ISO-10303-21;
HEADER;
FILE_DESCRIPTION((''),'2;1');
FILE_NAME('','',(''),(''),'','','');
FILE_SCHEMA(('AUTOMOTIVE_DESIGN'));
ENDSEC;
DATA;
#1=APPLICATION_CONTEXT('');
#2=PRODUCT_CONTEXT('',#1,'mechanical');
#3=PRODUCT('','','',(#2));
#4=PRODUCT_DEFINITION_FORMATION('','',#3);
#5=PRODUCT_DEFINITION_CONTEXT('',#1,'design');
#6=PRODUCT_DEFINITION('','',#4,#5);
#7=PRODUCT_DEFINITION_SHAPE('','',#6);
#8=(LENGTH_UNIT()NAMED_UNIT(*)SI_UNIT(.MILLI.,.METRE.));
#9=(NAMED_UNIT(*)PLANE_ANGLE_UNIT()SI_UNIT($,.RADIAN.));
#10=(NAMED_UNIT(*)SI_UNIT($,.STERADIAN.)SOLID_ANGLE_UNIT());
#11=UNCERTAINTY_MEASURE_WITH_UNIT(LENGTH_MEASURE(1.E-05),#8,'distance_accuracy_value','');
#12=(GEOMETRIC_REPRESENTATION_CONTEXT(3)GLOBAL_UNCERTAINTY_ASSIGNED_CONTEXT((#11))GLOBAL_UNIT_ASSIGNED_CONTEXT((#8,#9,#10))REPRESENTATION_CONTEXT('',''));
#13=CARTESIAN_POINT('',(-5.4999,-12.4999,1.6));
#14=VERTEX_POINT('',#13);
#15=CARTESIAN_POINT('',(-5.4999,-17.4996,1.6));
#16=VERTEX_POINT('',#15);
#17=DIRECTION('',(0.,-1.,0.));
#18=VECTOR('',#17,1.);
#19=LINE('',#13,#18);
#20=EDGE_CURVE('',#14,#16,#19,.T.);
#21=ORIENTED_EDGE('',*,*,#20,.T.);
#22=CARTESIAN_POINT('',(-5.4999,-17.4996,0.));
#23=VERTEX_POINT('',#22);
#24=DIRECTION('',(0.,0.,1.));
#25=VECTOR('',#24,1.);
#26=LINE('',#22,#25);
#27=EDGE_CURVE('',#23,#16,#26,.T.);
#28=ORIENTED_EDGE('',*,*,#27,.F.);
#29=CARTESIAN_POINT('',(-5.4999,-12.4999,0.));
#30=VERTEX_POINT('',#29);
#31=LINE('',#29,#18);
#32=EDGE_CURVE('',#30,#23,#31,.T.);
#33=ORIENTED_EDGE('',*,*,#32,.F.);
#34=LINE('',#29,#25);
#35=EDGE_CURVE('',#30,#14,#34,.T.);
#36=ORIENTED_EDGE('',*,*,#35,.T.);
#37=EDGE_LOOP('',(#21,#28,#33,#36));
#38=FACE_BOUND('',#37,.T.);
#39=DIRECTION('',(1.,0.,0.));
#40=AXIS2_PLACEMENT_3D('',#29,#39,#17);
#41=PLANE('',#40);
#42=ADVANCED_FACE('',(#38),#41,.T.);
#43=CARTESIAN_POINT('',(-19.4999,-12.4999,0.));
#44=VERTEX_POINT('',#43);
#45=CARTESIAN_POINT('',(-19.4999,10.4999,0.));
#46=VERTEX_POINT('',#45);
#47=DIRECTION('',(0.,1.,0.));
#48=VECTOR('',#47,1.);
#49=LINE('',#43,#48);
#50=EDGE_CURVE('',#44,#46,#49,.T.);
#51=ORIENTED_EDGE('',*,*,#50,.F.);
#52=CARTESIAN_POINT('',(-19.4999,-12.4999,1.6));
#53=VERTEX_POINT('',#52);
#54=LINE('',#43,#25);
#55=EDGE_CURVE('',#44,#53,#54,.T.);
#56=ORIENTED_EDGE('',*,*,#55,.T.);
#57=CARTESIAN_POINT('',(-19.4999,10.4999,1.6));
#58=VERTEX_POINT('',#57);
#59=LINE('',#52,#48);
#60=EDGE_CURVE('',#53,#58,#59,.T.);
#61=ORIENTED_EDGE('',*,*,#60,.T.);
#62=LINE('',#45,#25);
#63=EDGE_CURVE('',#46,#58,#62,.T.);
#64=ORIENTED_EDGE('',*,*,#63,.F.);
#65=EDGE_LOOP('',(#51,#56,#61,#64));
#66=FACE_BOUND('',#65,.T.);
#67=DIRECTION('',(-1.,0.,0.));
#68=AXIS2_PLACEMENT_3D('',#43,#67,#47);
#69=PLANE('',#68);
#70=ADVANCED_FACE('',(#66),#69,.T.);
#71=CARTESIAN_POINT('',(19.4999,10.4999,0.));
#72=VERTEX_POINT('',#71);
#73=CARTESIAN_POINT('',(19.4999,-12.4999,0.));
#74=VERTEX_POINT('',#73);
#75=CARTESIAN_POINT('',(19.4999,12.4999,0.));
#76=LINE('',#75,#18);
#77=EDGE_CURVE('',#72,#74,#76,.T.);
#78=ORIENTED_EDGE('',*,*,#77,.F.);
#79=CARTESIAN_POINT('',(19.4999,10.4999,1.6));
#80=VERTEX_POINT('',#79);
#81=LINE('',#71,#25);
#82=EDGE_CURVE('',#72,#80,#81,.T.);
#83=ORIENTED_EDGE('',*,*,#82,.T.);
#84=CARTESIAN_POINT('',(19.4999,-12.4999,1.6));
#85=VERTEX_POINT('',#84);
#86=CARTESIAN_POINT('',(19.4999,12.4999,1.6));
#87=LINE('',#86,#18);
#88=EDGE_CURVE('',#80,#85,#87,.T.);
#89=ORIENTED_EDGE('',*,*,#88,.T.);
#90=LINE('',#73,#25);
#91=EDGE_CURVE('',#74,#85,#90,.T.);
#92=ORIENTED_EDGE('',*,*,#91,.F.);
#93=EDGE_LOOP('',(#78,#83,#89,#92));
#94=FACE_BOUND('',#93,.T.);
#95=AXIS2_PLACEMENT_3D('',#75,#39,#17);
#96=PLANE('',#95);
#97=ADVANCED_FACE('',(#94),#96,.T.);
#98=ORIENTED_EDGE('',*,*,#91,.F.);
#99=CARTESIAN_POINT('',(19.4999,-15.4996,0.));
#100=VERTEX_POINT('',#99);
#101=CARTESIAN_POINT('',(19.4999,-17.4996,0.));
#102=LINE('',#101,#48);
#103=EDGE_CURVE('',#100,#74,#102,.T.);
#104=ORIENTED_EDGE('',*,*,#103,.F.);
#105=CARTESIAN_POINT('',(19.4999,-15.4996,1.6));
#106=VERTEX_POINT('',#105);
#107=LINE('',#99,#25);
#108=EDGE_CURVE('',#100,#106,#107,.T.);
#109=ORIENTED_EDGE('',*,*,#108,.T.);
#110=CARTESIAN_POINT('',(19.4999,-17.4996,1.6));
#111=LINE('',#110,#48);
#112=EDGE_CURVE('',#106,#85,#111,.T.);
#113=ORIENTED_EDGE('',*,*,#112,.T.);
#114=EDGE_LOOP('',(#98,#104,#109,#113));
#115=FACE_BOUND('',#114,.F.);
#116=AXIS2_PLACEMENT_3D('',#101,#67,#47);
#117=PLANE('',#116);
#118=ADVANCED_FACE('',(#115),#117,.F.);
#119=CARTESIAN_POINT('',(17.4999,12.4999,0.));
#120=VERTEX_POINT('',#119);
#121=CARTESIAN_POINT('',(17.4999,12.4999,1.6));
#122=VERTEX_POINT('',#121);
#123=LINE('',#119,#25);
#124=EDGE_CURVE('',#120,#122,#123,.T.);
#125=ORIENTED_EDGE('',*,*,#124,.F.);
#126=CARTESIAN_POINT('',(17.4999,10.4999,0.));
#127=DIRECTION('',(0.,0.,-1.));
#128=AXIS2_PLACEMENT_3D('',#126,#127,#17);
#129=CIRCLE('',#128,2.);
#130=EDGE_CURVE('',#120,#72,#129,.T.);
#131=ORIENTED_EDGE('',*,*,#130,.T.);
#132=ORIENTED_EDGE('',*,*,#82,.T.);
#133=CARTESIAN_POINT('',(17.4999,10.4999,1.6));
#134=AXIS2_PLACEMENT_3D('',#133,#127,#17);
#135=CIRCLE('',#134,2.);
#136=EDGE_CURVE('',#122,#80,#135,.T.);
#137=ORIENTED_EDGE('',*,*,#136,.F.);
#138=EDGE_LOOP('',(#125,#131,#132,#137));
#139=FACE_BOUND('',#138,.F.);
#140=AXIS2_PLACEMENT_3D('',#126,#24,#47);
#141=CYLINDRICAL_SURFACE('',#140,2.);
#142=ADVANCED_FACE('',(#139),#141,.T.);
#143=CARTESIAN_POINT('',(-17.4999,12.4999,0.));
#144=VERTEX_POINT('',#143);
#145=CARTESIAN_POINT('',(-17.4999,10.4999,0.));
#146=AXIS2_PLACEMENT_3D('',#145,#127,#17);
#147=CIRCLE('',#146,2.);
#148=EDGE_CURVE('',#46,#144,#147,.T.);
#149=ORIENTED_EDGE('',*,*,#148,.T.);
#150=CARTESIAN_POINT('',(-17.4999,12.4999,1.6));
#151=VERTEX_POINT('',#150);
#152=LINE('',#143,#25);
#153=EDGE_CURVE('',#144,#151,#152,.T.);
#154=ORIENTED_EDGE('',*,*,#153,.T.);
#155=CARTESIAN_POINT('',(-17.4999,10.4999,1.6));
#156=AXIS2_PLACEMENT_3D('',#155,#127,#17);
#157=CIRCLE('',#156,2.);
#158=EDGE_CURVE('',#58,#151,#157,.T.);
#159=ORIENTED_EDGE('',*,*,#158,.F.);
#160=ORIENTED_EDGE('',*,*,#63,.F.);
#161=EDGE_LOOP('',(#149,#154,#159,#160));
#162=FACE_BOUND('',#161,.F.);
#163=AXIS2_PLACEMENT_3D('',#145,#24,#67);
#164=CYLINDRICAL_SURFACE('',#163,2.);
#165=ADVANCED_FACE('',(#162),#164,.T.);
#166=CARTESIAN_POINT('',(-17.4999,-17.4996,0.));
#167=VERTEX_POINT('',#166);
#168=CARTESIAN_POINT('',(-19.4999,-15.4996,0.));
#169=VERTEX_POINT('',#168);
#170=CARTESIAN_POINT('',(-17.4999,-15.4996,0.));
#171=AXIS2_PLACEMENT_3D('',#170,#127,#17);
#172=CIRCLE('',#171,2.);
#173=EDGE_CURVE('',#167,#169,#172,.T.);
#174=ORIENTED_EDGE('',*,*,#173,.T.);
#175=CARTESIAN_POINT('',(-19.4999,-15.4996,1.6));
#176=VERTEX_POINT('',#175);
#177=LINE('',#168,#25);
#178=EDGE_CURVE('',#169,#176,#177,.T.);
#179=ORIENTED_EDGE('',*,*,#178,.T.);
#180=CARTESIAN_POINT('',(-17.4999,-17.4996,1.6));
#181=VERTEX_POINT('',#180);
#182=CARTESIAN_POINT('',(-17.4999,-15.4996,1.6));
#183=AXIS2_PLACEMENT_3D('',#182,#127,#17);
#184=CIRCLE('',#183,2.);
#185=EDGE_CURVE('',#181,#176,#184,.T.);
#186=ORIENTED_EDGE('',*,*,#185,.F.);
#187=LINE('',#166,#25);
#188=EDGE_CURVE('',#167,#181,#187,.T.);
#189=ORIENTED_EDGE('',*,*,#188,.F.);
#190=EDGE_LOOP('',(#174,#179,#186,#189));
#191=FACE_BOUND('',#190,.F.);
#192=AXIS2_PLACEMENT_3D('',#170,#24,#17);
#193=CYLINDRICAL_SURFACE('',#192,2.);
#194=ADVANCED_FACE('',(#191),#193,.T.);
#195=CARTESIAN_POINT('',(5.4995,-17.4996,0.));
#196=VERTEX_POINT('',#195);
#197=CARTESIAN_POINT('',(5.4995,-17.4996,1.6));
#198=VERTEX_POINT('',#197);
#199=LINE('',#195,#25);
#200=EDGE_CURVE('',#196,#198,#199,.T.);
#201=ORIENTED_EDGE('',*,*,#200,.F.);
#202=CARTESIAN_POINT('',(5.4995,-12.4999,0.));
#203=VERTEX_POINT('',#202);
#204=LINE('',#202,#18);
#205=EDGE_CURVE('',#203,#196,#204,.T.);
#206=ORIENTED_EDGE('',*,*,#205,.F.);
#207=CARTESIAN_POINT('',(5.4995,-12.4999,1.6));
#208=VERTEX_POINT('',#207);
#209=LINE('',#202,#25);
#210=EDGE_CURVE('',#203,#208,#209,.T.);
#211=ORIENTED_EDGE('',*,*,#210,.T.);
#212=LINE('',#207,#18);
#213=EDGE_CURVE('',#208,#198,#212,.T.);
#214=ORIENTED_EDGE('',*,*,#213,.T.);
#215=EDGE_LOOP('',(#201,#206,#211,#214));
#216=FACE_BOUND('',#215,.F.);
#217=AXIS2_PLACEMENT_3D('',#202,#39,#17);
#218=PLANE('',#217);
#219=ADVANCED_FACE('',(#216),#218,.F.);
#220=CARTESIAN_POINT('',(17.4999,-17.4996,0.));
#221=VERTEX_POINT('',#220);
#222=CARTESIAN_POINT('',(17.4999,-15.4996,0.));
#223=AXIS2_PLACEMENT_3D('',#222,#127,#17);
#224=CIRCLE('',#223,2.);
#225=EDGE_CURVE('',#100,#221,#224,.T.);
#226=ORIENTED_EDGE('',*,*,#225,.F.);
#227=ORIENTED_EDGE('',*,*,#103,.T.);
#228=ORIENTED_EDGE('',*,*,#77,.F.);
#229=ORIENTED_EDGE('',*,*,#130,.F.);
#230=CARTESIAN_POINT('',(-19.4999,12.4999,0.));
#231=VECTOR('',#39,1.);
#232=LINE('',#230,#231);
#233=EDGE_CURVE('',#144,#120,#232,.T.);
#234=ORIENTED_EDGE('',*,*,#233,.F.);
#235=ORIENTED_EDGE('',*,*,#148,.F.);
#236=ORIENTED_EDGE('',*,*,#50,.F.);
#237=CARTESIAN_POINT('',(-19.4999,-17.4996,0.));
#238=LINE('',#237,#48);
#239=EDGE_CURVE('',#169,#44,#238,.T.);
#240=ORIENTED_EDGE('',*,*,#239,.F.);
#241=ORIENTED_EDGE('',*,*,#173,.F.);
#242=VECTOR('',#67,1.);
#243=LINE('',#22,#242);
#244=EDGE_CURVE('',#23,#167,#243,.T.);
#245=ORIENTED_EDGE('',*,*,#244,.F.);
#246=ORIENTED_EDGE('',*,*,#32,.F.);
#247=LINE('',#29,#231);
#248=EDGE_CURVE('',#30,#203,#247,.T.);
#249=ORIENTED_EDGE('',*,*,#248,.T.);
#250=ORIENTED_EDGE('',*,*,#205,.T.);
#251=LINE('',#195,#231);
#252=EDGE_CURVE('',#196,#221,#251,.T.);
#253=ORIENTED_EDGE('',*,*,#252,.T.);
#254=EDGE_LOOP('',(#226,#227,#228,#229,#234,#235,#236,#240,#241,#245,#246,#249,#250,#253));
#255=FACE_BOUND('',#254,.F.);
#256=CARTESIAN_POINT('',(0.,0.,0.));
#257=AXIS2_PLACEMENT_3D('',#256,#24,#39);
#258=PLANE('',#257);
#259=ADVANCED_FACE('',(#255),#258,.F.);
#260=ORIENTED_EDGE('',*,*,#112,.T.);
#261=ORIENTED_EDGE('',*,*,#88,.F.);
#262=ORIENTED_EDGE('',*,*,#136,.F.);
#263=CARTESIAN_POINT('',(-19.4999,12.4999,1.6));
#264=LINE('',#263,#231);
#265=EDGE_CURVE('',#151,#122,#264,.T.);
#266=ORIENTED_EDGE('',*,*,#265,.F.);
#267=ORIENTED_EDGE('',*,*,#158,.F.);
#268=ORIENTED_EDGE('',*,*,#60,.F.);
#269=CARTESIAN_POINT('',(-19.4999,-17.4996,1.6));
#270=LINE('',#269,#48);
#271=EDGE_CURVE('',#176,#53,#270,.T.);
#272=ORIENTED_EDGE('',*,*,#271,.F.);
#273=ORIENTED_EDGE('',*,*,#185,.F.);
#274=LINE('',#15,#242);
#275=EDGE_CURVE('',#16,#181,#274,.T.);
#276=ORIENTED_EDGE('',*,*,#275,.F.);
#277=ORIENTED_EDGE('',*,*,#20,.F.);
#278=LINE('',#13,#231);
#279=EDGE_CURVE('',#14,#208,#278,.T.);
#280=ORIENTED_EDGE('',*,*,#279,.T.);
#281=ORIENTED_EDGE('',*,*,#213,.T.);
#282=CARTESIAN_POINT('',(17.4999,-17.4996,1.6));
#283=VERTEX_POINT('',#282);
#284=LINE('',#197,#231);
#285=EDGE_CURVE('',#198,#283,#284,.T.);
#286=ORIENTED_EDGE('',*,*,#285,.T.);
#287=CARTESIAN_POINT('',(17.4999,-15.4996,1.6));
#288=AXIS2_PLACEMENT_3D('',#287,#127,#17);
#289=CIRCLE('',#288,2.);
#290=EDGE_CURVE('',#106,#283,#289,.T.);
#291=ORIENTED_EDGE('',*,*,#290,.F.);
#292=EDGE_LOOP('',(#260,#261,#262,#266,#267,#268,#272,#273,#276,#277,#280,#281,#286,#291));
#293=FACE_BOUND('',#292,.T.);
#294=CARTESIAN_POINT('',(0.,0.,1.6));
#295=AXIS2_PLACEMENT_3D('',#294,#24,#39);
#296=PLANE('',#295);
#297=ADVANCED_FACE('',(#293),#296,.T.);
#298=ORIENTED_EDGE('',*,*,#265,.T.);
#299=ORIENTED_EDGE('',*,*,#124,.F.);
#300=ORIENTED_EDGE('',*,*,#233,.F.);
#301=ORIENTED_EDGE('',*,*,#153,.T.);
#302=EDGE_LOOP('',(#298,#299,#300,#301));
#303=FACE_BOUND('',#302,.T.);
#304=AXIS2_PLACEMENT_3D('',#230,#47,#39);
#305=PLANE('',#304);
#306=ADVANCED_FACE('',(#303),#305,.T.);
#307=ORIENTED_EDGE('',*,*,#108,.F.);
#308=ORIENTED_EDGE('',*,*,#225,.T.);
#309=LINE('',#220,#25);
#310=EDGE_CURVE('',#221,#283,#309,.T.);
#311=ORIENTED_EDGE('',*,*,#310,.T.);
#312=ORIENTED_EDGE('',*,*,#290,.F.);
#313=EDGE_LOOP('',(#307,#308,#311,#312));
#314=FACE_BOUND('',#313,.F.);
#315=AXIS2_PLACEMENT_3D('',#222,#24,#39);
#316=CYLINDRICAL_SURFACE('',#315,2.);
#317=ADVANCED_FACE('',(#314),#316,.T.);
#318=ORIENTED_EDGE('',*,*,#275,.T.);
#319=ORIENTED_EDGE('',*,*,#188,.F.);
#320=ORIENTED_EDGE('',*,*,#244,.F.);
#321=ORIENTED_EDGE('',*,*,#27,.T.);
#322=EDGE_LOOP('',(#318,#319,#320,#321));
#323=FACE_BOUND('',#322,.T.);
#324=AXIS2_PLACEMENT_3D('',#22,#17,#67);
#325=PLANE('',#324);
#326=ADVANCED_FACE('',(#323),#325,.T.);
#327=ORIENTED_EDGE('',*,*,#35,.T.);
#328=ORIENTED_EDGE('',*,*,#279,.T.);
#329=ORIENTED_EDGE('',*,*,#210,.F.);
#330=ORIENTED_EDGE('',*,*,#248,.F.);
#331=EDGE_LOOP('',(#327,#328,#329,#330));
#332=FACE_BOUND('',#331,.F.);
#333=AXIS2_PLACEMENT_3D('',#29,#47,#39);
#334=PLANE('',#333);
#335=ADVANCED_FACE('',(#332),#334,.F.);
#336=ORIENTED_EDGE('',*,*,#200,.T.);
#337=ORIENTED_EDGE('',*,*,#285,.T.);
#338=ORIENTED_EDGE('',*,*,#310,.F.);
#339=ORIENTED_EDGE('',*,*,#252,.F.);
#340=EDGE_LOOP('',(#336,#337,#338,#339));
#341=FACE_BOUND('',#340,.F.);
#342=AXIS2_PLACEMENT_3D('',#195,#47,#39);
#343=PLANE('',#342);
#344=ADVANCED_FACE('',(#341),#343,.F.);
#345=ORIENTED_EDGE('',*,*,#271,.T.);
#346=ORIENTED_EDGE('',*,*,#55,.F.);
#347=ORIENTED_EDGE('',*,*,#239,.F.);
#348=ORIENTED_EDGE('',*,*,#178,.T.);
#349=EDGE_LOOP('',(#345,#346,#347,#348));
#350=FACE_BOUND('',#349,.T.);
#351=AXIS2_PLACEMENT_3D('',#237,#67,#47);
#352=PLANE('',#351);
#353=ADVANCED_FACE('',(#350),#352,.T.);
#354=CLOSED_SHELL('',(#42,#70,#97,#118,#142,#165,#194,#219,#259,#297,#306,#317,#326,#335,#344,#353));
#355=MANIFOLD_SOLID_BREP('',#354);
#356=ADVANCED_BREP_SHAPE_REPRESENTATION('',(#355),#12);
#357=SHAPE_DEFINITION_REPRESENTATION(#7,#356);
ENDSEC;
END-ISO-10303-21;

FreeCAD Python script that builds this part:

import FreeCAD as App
import Part
import Sketcher

V = App.Vector
Q = App.Units.Quantity


def edges_at(feature, points):
    """Names of the edges that pass closest to the given points."""
    edges = feature.Shape.Edges
    near = lambda p: min(range(len(edges)), key=lambda i: edges[i].distToShape(Part.Vertex(*p))[0])
    return sorted({f"Edge{near(p) + 1}" for p in points})


def add_polygon(sketch, points):
    """Adds a closed chain of lines whose ends are joined by coincident constraints."""
    first, n = sketch.GeometryCount, len(points)
    for a, b in zip(points, points[1:] + points[:1]):
        sketch.addGeometry(Part.LineSegment(App.Vector(*a, 0), App.Vector(*b, 0)), False)
    for i in range(n):
        sketch.addConstraint(Sketcher.Constraint("Coincident", first + i, 2, first + (i + 1) % n, 1))

doc = App.newDocument("Part")
params = doc.addObject("Spreadsheet::Sheet", "Params")
for row, (alias, value) in enumerate([
    ("sketch1_width", "14 mm"),
    ("pad1_length", "1.6 mm"),
    ("fillet_radius", "2 mm"),
], start=1):
    params.set(f"A{row}", alias)
    params.set(f"B{row}", "=" + value)
    params.setAlias(f"B{row}", alias)

body = doc.addObject("PartDesign::Body", "Body")

sketch1 = body.newObject("Sketcher::SketchObject", "Sketch")
sketch1.AttachmentSupport = (doc.getObject("XY_Plane"), [""])
sketch1.MapMode = "FlatFace"
add_polygon(sketch1, [(-19.5, 12.5), (-19.5, -17.5), (-5.5, -17.5), (-5.5, -12.5), (5.5, -12.5), (5.5, -17.5), (19.5, -17.5), (19.5, 12.5)])
sketch1.addConstraint(Sketcher.Constraint("Vertical", 0))
sketch1.addConstraint(Sketcher.Constraint("Horizontal", 1))
sketch1.addConstraint(Sketcher.Constraint("Vertical", 2))
sketch1.addConstraint(Sketcher.Constraint("Horizontal", 3))
sketch1.addConstraint(Sketcher.Constraint("Vertical", 4))
sketch1.addConstraint(Sketcher.Constraint("Horizontal", 5))
sketch1.addConstraint(Sketcher.Constraint("Vertical", 6))
sketch1.addConstraint(Sketcher.Constraint("Horizontal", 7))
sketch1.addConstraint(Sketcher.Constraint("Symmetric", 1, 2, 4, 2, -2))
sketch1.addConstraint(Sketcher.Constraint("DistanceX", 1, 1, 1, 2, Q("14 mm")))
sketch1.addConstraint(Sketcher.Constraint("DistanceX", 0, 2, -1, 1, Q("19.5 mm")))
sketch1.addConstraint(Sketcher.Constraint("DistanceY", 2, 2, -1, 1, Q("12.5 mm")))
sketch1.addConstraint(Sketcher.Constraint("DistanceX", -1, 1, 5, 2, Q("19.5 mm")))
sketch1.addConstraint(Sketcher.Constraint("DistanceY", -1, 1, 6, 2, Q("12.5 mm")))
sketch1.addConstraint(Sketcher.Constraint("DistanceY", 0, 2, 0, 1, Q("29.9995 mm")))
sketch1.setExpression("Constraints[17]", "Params.sketch1_width")
pad1 = body.newObject("PartDesign::Pad", "Pad")
pad1.Profile = sketch1
pad1.setExpression("Length", "Params.pad1_length")
doc.recompute()

fillet = body.newObject("PartDesign::Fillet", "Fillet")
fillet.Base = (pad1, edges_at(pad1, [
    (19.5, 12.5, 0.8),
    (-19.5, 12.5, 0.8),
    (19.5, -17.5, 0.8),
    (-19.5, -17.5, 0.8),
]))
fillet.setExpression("Radius", "Params.fillet_radius")

doc.recompute()
